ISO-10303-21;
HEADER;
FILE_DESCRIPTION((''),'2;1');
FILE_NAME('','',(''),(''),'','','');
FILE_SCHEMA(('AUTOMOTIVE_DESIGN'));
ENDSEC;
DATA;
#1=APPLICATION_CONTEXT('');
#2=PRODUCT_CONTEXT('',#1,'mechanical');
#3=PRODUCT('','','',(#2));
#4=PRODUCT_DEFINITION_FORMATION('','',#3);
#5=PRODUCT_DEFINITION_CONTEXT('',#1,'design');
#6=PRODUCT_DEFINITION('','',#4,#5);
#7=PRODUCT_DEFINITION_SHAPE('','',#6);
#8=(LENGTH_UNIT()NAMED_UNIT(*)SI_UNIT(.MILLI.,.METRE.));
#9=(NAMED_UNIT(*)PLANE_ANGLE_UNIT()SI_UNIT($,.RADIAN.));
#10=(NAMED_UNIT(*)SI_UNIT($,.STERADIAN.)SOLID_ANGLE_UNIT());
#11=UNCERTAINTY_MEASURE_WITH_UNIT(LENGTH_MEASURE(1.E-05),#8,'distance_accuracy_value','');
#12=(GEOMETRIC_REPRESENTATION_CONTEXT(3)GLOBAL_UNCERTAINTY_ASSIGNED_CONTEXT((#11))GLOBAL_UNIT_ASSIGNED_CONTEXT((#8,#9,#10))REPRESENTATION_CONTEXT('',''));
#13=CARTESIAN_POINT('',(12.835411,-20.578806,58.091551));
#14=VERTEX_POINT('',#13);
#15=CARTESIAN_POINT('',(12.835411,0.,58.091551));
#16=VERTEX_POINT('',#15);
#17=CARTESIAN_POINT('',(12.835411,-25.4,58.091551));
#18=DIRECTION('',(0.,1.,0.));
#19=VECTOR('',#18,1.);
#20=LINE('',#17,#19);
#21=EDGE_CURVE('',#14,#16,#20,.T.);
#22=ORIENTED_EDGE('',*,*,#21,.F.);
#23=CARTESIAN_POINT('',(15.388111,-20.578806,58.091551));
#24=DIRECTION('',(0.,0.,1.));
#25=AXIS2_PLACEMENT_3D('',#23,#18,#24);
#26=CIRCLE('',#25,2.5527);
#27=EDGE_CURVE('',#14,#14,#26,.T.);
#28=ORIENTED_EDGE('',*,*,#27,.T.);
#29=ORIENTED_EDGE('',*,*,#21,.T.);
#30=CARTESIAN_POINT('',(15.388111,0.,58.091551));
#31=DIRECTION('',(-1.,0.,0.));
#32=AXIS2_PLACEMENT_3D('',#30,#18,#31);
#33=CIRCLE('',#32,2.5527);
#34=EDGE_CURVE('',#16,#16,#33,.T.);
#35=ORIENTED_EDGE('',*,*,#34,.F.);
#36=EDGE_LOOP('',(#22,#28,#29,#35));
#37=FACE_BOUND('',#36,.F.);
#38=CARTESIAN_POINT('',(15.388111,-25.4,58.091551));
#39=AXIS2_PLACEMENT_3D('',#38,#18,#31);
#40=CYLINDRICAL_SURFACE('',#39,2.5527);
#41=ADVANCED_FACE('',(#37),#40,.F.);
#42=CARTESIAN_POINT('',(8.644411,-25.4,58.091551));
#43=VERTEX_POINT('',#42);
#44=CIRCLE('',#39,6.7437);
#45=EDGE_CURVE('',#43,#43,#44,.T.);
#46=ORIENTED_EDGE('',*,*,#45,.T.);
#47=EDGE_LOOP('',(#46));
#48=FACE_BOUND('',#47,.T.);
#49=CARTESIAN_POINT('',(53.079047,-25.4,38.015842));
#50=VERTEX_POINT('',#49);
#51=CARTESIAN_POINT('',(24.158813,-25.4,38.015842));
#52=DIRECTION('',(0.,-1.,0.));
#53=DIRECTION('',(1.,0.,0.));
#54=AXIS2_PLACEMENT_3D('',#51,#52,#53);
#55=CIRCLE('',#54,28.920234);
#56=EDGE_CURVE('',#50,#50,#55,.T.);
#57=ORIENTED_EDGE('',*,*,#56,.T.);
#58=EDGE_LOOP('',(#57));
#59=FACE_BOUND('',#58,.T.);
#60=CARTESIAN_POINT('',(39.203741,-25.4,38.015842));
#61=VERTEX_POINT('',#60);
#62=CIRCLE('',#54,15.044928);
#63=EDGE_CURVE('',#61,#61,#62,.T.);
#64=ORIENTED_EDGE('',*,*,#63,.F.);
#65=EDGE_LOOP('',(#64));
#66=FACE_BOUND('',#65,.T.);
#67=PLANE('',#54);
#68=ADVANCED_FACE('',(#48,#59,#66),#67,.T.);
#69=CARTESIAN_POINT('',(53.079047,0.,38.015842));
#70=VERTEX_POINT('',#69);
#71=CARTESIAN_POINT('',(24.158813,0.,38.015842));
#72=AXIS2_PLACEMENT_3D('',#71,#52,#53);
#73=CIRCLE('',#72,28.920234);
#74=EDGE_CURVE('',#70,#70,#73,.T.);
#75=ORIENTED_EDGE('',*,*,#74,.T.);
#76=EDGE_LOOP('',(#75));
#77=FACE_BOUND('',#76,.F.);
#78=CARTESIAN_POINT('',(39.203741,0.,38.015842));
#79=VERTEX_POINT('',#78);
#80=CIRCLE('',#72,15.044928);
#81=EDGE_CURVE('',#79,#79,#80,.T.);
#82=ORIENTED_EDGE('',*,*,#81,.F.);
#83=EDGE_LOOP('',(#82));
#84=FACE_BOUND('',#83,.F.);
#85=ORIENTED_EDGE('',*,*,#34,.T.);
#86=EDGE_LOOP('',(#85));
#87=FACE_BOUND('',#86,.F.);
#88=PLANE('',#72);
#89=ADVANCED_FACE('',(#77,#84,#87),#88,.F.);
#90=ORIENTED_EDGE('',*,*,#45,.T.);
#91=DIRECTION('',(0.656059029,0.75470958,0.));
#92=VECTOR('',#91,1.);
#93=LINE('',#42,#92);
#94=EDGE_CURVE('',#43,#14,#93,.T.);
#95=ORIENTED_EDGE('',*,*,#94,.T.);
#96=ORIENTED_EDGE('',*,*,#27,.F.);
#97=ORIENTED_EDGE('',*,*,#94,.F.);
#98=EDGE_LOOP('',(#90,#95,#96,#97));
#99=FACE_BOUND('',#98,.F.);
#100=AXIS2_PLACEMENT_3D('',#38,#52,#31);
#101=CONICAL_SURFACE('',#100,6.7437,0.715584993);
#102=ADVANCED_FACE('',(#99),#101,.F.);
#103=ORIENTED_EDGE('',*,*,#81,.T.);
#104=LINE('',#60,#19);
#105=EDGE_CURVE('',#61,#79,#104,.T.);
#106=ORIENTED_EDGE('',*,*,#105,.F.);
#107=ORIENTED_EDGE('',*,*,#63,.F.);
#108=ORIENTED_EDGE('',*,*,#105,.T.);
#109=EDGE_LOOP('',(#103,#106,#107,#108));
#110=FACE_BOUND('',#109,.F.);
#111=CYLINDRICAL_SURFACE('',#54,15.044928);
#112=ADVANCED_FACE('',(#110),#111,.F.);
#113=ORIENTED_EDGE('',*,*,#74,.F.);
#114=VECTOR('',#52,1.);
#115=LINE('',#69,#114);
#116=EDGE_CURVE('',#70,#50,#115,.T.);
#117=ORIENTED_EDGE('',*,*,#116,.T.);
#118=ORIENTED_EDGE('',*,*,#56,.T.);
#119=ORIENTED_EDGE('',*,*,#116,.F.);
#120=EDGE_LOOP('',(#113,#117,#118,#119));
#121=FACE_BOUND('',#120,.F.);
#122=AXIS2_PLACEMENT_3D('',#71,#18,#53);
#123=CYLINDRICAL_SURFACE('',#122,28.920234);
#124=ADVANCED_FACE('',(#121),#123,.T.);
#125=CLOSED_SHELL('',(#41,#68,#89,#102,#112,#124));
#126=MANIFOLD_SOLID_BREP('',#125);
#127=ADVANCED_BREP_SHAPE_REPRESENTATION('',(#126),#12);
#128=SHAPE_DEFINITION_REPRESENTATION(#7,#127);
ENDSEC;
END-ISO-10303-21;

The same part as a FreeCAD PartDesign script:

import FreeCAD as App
import Part
import Sketcher
from FreeCAD import Vector
Q = App.Units.Quantity

doc = App.newDocument("Part")
body = doc.addObject("PartDesign::Body", "Body")

sketch1 = doc.addObject("Sketcher::SketchObject", "Sketch")
body.addObject(sketch1)
sketch1.AttachmentSupport = (doc.XZ_Plane, [""])
sketch1.MapMode = "FlatFace"
sketch1.addGeometry(Part.Circle(Vector(24.158813, 38.015842, 0), Vector(0, 0, 1), 28.920234), False)
sketch1.addConstraint(Sketcher.Constraint("Diameter", 0, 57.840467))
sketch1.addConstraint(Sketcher.Constraint("DistanceX", -1, 1, 0, 3, 24.158813))
sketch1.addConstraint(Sketcher.Constraint("DistanceY", -1, 1, 0, 3, 38.015842))
pad1 = doc.addObject("PartDesign::Pad", "Pad")
body.addObject(pad1)
pad1.Profile = sketch1
pad1.Length = Q("1 in")

sketch2 = doc.addObject("Sketcher::SketchObject", "Sketch001")
body.addObject(sketch2)
sketch2.AttachmentSupport = (doc.XZ_Plane, [""])
sketch2.MapMode = "FlatFace"
sketch2.AttachmentOffset = App.Placement(Vector(0, 0, 1 * 25.4), App.Rotation())
sketch2.addGeometry(Part.Circle(Vector(24.158813, 38.015842, 0), Vector(0, 0, 1), 15.044928), False)
sketch2.addConstraint(Sketcher.Constraint("Diameter", 0, 30.089856))
sketch2.addConstraint(Sketcher.Constraint("DistanceX", -1, 1, 0, 3, 24.158813))
sketch2.addConstraint(Sketcher.Constraint("DistanceY", -1, 1, 0, 3, 38.015842))
pocket1 = doc.addObject("PartDesign::Pocket", "Pocket")
body.addObject(pocket1)
pocket1.Profile = sketch2
pocket1.Type = "ThroughAll"

sketch3 = doc.addObject("Sketcher::SketchObject", "Sketch002")
body.addObject(sketch3)
sketch3.AttachmentSupport = (doc.XZ_Plane, [""])
sketch3.MapMode = "FlatFace"
sketch3.AttachmentOffset = App.Placement(Vector(0, 0, 1 * 25.4), App.Rotation())
sketch3.addGeometry(Part.Circle(Vector(15.388111, 58.091551, 0), Vector(0, 0, 1), 2.5527), False)
sketch3.addConstraint(Sketcher.Constraint("Diameter", 0, Q("0.201 in")))
sketch3.addConstraint(Sketcher.Constraint("DistanceX", -1, 1, 0, 3, 15.388111))
sketch3.addConstraint(Sketcher.Constraint("DistanceY", -1, 1, 0, 3, 58.091551))
doc.recompute()
hole = doc.addObject("PartDesign::Hole", "Hole")
body.addObject(hole)
hole.Profile = sketch3
hole.ThreadType = "None"
hole.Diameter = Q("0.201 in")
hole.DepthType = "ThroughAll"
hole.HoleCutType = "Countersink"
hole.HoleCutDiameter = Q("0.531 in")
hole.HoleCutCountersinkAngle = 82

doc.recompute()
